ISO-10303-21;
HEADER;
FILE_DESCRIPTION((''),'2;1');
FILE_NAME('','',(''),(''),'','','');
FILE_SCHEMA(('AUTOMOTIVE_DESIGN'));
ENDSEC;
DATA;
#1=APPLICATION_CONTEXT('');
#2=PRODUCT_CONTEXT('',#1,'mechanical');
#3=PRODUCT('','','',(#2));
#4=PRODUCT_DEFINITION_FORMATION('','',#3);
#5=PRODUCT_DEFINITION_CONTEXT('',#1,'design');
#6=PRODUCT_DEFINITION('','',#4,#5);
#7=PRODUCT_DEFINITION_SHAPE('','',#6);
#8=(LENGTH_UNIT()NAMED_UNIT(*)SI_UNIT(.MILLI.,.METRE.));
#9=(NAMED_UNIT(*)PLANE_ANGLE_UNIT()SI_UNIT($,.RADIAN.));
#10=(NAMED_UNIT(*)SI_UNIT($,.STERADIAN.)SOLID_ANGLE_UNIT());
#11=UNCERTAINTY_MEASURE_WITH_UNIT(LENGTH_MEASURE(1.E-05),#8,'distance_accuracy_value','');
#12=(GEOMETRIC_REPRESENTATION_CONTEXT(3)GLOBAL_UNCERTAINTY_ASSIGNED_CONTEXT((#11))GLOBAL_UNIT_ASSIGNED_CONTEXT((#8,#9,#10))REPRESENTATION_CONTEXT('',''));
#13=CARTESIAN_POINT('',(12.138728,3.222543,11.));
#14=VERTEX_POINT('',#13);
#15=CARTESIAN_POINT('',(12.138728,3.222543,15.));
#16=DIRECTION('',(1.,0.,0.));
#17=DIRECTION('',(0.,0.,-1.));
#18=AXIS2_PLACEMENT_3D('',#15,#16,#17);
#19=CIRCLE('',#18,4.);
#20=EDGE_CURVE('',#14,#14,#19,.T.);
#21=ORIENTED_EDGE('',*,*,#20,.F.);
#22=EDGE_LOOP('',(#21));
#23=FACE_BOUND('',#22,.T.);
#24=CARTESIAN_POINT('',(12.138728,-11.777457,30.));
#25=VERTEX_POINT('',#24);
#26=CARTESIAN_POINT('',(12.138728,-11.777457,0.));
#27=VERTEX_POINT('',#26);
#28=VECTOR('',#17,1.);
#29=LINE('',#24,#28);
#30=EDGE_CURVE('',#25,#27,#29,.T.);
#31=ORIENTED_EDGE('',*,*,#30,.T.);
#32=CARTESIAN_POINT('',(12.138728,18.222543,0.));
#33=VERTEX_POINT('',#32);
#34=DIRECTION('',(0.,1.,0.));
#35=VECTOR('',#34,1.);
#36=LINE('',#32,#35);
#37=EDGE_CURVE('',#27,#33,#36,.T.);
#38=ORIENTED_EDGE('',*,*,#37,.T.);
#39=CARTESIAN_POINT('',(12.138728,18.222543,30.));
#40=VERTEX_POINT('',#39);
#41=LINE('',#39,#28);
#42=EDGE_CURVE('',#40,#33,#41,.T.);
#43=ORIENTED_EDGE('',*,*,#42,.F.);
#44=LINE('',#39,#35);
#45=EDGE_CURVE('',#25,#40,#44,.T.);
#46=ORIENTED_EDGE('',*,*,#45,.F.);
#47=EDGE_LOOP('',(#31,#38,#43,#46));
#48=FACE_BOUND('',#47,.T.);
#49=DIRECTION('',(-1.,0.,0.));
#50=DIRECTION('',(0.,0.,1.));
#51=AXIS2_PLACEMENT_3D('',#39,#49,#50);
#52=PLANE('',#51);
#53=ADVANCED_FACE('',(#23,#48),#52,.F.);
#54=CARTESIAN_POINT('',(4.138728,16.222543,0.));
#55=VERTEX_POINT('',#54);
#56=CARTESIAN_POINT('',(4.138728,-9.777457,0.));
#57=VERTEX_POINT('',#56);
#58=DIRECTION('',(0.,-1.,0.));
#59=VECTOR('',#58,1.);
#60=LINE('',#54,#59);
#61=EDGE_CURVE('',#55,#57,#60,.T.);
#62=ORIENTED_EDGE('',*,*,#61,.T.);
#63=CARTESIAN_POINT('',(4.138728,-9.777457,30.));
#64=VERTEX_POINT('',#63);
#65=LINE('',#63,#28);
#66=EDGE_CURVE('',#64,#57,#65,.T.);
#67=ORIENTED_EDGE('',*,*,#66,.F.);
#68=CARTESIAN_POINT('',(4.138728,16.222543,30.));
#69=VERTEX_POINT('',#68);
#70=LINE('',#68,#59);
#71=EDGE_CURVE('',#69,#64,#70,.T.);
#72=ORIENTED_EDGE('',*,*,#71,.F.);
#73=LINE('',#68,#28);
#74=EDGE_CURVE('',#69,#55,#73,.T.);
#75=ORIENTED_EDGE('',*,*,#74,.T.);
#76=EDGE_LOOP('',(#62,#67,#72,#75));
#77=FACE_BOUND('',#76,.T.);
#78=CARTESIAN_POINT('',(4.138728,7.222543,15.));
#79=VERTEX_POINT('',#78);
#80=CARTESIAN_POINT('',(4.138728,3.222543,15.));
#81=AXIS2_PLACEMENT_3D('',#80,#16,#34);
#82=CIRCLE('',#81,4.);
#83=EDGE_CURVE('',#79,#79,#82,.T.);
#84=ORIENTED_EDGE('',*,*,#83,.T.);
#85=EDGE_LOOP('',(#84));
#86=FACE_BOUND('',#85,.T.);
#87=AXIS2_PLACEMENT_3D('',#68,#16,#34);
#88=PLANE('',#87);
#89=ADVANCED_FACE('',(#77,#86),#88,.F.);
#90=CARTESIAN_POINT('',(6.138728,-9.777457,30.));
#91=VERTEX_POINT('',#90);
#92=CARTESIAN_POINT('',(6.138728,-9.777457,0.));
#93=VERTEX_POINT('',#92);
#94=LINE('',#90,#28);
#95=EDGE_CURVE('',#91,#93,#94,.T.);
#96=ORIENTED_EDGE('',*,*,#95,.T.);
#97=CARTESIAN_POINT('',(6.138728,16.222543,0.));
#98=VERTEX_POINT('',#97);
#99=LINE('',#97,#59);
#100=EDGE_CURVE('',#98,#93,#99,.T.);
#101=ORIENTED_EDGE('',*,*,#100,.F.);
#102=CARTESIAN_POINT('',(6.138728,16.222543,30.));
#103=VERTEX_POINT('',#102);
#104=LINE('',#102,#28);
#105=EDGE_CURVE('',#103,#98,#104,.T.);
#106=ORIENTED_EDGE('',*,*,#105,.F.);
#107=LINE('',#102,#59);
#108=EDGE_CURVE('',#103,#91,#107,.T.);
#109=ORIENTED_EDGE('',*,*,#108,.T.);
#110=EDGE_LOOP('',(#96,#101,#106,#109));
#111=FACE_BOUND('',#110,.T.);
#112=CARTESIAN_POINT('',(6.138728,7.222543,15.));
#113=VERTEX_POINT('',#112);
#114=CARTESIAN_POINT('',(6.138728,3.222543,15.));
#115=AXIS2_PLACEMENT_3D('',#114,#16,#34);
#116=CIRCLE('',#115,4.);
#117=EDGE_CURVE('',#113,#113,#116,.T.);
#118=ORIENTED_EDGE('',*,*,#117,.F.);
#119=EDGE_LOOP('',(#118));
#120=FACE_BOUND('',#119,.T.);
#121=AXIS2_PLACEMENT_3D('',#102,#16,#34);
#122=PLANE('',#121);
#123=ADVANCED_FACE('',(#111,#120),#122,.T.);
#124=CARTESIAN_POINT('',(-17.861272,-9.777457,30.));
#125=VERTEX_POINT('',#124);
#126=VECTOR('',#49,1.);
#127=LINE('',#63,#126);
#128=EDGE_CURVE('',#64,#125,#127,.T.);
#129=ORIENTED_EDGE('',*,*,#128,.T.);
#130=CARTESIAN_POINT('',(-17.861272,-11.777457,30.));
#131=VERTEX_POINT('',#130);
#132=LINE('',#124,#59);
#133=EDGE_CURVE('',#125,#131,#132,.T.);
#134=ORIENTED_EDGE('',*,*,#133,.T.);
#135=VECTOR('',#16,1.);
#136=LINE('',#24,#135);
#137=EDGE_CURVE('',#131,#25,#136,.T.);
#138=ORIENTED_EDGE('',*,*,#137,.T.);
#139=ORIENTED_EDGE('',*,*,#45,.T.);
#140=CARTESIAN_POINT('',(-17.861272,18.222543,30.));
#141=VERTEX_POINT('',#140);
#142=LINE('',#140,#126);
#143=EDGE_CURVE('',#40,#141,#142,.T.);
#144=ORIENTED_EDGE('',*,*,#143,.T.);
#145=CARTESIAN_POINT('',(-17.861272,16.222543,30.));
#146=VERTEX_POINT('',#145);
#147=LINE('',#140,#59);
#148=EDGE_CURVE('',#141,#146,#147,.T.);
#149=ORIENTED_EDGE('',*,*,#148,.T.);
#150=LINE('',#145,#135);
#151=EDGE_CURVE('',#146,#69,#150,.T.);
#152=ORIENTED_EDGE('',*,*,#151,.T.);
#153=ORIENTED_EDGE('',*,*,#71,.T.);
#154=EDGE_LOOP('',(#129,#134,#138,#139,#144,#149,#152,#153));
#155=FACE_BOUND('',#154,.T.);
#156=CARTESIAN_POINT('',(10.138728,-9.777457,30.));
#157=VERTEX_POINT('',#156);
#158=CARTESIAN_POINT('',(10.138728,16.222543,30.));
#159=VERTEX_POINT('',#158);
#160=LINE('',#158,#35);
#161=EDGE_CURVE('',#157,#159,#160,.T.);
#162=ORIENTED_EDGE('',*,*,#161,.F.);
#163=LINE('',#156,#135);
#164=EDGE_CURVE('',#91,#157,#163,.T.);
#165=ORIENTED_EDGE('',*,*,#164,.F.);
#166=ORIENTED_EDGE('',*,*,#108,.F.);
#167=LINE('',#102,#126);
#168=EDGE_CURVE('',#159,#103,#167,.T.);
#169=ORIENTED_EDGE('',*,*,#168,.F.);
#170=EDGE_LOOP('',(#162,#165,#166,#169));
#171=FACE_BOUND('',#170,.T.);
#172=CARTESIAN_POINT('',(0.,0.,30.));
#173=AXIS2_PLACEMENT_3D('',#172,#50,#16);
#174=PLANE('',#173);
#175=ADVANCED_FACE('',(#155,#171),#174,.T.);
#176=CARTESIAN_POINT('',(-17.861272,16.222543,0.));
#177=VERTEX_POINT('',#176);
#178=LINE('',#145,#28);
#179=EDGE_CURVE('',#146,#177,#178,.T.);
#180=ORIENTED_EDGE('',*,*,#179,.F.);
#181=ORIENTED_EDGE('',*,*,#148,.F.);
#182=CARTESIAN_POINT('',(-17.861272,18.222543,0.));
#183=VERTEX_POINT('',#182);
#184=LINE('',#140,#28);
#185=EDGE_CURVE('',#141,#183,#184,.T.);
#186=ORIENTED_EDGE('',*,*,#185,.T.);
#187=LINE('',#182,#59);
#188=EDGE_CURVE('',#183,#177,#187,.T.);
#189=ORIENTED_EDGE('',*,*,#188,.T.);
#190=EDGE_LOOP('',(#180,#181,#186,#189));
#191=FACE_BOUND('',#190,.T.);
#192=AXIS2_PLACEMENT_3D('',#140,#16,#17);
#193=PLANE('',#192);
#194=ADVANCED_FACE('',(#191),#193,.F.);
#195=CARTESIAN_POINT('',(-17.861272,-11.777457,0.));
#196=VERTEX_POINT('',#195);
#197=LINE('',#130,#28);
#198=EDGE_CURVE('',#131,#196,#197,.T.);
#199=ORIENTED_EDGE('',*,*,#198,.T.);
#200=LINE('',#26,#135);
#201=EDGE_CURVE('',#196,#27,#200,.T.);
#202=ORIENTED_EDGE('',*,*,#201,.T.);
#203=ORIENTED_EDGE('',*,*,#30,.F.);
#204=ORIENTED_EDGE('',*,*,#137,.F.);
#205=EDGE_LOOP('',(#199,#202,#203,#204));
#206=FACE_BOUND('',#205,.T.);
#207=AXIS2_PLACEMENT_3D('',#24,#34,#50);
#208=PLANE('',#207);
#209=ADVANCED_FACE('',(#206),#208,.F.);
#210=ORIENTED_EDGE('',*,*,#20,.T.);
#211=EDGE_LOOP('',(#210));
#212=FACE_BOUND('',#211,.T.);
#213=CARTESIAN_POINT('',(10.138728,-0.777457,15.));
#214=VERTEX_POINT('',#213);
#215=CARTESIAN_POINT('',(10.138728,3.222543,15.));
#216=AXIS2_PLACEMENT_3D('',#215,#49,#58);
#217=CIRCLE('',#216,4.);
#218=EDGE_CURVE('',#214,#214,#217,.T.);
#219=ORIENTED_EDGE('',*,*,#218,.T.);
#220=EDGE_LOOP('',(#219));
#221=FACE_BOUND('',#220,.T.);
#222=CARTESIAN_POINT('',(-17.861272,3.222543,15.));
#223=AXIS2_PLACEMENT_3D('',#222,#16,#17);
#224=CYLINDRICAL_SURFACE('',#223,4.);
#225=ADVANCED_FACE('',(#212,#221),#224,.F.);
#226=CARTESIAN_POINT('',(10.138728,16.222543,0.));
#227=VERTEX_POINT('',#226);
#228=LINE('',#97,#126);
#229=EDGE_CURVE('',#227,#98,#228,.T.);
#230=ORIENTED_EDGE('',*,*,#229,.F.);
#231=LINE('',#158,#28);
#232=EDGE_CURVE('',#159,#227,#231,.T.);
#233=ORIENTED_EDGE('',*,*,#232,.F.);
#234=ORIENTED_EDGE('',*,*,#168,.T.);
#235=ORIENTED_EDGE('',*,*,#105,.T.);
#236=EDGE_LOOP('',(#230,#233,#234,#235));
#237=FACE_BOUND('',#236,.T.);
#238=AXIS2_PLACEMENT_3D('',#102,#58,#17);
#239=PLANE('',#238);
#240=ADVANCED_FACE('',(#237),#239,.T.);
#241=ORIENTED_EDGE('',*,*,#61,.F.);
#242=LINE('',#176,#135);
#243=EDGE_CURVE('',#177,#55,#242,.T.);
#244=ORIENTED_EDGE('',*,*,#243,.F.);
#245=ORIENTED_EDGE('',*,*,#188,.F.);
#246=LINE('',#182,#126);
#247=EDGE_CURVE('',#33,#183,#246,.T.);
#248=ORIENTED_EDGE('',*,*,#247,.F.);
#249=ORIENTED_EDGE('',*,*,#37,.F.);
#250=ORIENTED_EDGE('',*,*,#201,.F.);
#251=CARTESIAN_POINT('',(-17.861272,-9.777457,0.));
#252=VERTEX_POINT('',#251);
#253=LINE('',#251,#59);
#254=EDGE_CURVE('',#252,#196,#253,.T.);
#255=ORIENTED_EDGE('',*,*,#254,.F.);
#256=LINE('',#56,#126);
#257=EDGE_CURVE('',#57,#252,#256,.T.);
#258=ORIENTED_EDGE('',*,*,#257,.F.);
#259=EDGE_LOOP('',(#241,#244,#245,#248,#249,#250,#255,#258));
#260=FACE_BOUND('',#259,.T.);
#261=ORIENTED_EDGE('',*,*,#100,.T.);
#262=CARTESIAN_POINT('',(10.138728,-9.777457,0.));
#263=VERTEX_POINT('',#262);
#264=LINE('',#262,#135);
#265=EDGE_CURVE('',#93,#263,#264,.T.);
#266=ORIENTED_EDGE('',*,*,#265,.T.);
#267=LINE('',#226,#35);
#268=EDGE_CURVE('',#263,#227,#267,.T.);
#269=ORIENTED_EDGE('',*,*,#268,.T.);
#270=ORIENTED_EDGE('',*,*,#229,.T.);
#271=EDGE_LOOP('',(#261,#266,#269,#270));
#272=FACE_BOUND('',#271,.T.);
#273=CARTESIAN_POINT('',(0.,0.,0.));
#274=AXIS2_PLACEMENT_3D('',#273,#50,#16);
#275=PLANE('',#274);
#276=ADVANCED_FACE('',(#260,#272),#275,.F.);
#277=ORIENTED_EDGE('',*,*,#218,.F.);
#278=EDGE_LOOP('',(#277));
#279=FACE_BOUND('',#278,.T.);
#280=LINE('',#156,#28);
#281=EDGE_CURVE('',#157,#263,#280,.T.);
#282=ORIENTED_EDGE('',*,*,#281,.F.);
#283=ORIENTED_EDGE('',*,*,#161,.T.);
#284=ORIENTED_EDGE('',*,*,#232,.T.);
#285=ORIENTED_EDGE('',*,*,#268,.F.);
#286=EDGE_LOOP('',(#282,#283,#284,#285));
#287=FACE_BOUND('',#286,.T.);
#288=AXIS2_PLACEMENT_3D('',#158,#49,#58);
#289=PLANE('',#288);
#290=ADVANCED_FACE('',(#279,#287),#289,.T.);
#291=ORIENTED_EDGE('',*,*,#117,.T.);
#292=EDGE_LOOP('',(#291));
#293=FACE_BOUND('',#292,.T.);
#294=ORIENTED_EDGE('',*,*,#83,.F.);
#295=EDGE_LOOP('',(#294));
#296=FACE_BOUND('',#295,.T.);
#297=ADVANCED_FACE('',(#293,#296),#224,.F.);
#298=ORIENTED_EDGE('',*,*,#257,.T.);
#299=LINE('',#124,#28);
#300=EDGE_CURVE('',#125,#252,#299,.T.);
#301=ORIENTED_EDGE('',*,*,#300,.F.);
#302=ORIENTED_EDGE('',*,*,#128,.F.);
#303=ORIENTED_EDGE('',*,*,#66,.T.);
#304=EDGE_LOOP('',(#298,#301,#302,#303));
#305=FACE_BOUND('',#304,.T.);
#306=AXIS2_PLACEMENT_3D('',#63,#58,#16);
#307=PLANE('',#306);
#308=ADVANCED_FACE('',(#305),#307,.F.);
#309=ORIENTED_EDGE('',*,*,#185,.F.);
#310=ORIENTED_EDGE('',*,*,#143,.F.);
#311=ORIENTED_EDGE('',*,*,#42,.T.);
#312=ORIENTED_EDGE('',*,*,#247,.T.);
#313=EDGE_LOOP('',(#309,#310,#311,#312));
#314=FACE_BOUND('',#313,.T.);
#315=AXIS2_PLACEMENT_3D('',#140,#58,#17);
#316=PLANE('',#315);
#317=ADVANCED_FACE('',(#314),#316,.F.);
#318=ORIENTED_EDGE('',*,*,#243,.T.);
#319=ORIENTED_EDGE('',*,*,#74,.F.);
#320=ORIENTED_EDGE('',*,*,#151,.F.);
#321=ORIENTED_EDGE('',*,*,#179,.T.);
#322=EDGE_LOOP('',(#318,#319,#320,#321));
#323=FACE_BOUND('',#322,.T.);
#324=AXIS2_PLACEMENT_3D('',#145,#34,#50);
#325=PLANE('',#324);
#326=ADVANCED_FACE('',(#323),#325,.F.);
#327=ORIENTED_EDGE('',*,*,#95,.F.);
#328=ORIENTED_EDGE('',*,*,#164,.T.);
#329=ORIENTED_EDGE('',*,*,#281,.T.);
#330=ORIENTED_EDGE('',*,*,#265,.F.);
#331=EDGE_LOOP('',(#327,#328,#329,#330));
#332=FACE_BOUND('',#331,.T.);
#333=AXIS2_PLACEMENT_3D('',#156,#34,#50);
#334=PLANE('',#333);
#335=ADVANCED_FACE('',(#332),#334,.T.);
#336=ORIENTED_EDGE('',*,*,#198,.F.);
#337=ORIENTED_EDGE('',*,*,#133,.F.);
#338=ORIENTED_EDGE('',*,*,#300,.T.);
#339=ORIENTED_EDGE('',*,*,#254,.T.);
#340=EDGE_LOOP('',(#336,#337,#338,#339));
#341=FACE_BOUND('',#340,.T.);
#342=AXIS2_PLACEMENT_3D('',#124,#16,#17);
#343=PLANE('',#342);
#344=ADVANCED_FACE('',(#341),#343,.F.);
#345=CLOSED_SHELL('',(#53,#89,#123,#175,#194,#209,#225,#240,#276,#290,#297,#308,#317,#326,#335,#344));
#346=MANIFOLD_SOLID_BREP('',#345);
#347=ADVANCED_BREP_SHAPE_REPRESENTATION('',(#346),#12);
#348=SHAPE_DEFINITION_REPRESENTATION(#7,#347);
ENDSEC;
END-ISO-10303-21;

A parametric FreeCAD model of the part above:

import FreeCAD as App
import Part
import Sketcher

V = App.Vector
Q = App.Units.Quantity

doc = App.newDocument("Part")
params = doc.addObject("Spreadsheet::Sheet", "Params")
for row, (alias, value) in enumerate([
    ("sketch1_width", "30 mm"),
    ("sketch1_width2", "22 mm"),
    ("sketch1_width3", "4 mm"),
    ("sketch1_height", "2 mm"),
    ("pad1_length", "30 mm"),
    ("sketch2_diameter", "8 mm"),
    ("pocket1_length", "30 mm"),
], start=1):
    params.set(f"A{row}", alias)
    params.set(f"B{row}", "=" + value)
    params.setAlias(f"B{row}", alias)

body = doc.addObject("PartDesign::Body", "Body")

# Sketch on XY plane
sketch1 = body.newObject("Sketcher::SketchObject", "Sketch")
sketch1.AttachmentSupport = (doc.getObject("XY_Plane"), [""])
sketch1.MapMode = "FlatFace"
sketch1.addGeometry([
    Part.LineSegment(V(12.138728, 18.222543, 0), V(-17.861272, 18.222543, 0)),  # 0
    Part.LineSegment(V(-17.861272, 18.222543, 0), V(-17.861272, 16.222543, 0)),  # 1
    Part.LineSegment(V(-17.861272, 16.222543, 0), V(4.138728, 16.222543, 0)),  # 2
    Part.LineSegment(V(4.138728, 16.222543, 0), V(4.138728, -9.777457, 0)),  # 3
    Part.LineSegment(V(4.138728, -9.777457, 0), V(-17.861272, -9.777457, 0)),  # 4
    Part.LineSegment(V(-17.861272, -9.777457, 0), V(-17.861272, -11.777457, 0)),  # 5
    Part.LineSegment(V(-17.861272, -11.777457, 0), V(12.138728, -11.777457, 0)),  # 6
    Part.LineSegment(V(12.138728, -11.777457, 0), V(12.138728, 18.222543, 0)),  # 7
    Part.LineSegment(V(6.138728, -9.777457, 0), V(6.138728, 16.222543, 0)),  # 8
    Part.LineSegment(V(6.138728, 16.222543, 0), V(10.138728, 16.222543, 0)),  # 9
    Part.LineSegment(V(10.138728, 16.222543, 0), V(10.138728, -9.777457, 0)),  # 10
    Part.LineSegment(V(10.138728, -9.777457, 0), V(6.138728, -9.777457, 0)),  # 11
], False)
sketch1.addConstraint([
    Sketcher.Constraint("Coincident", 0, 2, 1, 1),
    Sketcher.Constraint("Coincident", 1, 2, 2, 1),
    Sketcher.Constraint("Coincident", 2, 2, 3, 1),
    Sketcher.Constraint("Coincident", 3, 2, 4, 1),
    Sketcher.Constraint("Coincident", 4, 2, 5, 1),
    Sketcher.Constraint("Coincident", 5, 2, 6, 1),
    Sketcher.Constraint("Coincident", 6, 2, 7, 1),
    Sketcher.Constraint("Coincident", 7, 2, 0, 1),
    Sketcher.Constraint("Coincident", 8, 2, 9, 1),
    Sketcher.Constraint("Coincident", 9, 2, 10, 1),
    Sketcher.Constraint("Coincident", 10, 2, 11, 1),
    Sketcher.Constraint("Coincident", 11, 2, 8, 1),
    Sketcher.Constraint("Horizontal", 0),
    Sketcher.Constraint("Vertical", 1),
    Sketcher.Constraint("Horizontal", 2),
    Sketcher.Constraint("Vertical", 3),
    Sketcher.Constraint("Horizontal", 4),
    Sketcher.Constraint("Vertical", 5),
    Sketcher.Constraint("Horizontal", 6),
    Sketcher.Constraint("Vertical", 7),
    Sketcher.Constraint("Vertical", 8),
    Sketcher.Constraint("Horizontal", 9),
    Sketcher.Constraint("Vertical", 10),
    Sketcher.Constraint("Horizontal", 11),
    Sketcher.Constraint("Horizontal", 2, 2, 8, 2),
    Sketcher.Constraint("Horizontal", 4, 2, 10, 2),
    Sketcher.Constraint("Vertical", 1, 2, 4, 2),
    Sketcher.Constraint("Equal", 1, 5),
    Sketcher.Constraint("Equal", 6, 7),
    Sketcher.Constraint("DistanceX", 0, 2, 0, 1, Q("30 mm")),
    Sketcher.Constraint("DistanceX", 2, 1, 2, 2, Q("22 mm")),
    Sketcher.Constraint("DistanceX", 9, 1, 9, 2, Q("4 mm")),
    Sketcher.Constraint("DistanceY", 1, 2, 1, 1, Q("2 mm")),
    Sketcher.Constraint("DistanceX", 2, 2, 8, 2, Q("2 mm")),
    Sketcher.Constraint("DistanceX", 0, 2, -1, 1, Q("17.861272 mm")),
    Sketcher.Constraint("DistanceY", -1, 1, 0, 2, Q("18.222543 mm")),
])
sketch1.setExpression("Constraints[29]", "Params.sketch1_width")
sketch1.setExpression("Constraints[30]", "Params.sketch1_width2")
sketch1.setExpression("Constraints[31]", "Params.sketch1_width3")
sketch1.setExpression("Constraints[32]", "Params.sketch1_height")
pad1 = body.newObject("PartDesign::Pad", "Pad")
pad1.Profile = sketch1
pad1.setExpression("Length", "Params.pad1_length")

# Sketch on YZ plane
sketch2 = body.newObject("Sketcher::SketchObject", "Sketch001")
sketch2.AttachmentSupport = (doc.getObject("YZ_Plane"), [""])
sketch2.MapMode = "FlatFace"
sketch2.AttachmentOffset = App.Placement(V(0, 0, 12.138728), App.Rotation())
sketch2.addGeometry(Part.Circle(V(3.222543, 15, 0), V(0, 0, 1), 4), False)
sketch2.addConstraint([
    Sketcher.Constraint("Diameter", 0, Q("8 mm")),
    Sketcher.Constraint("DistanceY", -1, 1, 0, 3, Q("15 mm")),
    Sketcher.Constraint("DistanceX", -1, 1, 0, 3, Q("3.222543 mm")),
])
sketch2.setExpression("Constraints[0]", "Params.sketch2_diameter")
pocket1 = body.newObject("PartDesign::Pocket", "Pocket")
pocket1.Profile = sketch2
pocket1.setExpression("Length", "Params.pocket1_length")

doc.recompute()
